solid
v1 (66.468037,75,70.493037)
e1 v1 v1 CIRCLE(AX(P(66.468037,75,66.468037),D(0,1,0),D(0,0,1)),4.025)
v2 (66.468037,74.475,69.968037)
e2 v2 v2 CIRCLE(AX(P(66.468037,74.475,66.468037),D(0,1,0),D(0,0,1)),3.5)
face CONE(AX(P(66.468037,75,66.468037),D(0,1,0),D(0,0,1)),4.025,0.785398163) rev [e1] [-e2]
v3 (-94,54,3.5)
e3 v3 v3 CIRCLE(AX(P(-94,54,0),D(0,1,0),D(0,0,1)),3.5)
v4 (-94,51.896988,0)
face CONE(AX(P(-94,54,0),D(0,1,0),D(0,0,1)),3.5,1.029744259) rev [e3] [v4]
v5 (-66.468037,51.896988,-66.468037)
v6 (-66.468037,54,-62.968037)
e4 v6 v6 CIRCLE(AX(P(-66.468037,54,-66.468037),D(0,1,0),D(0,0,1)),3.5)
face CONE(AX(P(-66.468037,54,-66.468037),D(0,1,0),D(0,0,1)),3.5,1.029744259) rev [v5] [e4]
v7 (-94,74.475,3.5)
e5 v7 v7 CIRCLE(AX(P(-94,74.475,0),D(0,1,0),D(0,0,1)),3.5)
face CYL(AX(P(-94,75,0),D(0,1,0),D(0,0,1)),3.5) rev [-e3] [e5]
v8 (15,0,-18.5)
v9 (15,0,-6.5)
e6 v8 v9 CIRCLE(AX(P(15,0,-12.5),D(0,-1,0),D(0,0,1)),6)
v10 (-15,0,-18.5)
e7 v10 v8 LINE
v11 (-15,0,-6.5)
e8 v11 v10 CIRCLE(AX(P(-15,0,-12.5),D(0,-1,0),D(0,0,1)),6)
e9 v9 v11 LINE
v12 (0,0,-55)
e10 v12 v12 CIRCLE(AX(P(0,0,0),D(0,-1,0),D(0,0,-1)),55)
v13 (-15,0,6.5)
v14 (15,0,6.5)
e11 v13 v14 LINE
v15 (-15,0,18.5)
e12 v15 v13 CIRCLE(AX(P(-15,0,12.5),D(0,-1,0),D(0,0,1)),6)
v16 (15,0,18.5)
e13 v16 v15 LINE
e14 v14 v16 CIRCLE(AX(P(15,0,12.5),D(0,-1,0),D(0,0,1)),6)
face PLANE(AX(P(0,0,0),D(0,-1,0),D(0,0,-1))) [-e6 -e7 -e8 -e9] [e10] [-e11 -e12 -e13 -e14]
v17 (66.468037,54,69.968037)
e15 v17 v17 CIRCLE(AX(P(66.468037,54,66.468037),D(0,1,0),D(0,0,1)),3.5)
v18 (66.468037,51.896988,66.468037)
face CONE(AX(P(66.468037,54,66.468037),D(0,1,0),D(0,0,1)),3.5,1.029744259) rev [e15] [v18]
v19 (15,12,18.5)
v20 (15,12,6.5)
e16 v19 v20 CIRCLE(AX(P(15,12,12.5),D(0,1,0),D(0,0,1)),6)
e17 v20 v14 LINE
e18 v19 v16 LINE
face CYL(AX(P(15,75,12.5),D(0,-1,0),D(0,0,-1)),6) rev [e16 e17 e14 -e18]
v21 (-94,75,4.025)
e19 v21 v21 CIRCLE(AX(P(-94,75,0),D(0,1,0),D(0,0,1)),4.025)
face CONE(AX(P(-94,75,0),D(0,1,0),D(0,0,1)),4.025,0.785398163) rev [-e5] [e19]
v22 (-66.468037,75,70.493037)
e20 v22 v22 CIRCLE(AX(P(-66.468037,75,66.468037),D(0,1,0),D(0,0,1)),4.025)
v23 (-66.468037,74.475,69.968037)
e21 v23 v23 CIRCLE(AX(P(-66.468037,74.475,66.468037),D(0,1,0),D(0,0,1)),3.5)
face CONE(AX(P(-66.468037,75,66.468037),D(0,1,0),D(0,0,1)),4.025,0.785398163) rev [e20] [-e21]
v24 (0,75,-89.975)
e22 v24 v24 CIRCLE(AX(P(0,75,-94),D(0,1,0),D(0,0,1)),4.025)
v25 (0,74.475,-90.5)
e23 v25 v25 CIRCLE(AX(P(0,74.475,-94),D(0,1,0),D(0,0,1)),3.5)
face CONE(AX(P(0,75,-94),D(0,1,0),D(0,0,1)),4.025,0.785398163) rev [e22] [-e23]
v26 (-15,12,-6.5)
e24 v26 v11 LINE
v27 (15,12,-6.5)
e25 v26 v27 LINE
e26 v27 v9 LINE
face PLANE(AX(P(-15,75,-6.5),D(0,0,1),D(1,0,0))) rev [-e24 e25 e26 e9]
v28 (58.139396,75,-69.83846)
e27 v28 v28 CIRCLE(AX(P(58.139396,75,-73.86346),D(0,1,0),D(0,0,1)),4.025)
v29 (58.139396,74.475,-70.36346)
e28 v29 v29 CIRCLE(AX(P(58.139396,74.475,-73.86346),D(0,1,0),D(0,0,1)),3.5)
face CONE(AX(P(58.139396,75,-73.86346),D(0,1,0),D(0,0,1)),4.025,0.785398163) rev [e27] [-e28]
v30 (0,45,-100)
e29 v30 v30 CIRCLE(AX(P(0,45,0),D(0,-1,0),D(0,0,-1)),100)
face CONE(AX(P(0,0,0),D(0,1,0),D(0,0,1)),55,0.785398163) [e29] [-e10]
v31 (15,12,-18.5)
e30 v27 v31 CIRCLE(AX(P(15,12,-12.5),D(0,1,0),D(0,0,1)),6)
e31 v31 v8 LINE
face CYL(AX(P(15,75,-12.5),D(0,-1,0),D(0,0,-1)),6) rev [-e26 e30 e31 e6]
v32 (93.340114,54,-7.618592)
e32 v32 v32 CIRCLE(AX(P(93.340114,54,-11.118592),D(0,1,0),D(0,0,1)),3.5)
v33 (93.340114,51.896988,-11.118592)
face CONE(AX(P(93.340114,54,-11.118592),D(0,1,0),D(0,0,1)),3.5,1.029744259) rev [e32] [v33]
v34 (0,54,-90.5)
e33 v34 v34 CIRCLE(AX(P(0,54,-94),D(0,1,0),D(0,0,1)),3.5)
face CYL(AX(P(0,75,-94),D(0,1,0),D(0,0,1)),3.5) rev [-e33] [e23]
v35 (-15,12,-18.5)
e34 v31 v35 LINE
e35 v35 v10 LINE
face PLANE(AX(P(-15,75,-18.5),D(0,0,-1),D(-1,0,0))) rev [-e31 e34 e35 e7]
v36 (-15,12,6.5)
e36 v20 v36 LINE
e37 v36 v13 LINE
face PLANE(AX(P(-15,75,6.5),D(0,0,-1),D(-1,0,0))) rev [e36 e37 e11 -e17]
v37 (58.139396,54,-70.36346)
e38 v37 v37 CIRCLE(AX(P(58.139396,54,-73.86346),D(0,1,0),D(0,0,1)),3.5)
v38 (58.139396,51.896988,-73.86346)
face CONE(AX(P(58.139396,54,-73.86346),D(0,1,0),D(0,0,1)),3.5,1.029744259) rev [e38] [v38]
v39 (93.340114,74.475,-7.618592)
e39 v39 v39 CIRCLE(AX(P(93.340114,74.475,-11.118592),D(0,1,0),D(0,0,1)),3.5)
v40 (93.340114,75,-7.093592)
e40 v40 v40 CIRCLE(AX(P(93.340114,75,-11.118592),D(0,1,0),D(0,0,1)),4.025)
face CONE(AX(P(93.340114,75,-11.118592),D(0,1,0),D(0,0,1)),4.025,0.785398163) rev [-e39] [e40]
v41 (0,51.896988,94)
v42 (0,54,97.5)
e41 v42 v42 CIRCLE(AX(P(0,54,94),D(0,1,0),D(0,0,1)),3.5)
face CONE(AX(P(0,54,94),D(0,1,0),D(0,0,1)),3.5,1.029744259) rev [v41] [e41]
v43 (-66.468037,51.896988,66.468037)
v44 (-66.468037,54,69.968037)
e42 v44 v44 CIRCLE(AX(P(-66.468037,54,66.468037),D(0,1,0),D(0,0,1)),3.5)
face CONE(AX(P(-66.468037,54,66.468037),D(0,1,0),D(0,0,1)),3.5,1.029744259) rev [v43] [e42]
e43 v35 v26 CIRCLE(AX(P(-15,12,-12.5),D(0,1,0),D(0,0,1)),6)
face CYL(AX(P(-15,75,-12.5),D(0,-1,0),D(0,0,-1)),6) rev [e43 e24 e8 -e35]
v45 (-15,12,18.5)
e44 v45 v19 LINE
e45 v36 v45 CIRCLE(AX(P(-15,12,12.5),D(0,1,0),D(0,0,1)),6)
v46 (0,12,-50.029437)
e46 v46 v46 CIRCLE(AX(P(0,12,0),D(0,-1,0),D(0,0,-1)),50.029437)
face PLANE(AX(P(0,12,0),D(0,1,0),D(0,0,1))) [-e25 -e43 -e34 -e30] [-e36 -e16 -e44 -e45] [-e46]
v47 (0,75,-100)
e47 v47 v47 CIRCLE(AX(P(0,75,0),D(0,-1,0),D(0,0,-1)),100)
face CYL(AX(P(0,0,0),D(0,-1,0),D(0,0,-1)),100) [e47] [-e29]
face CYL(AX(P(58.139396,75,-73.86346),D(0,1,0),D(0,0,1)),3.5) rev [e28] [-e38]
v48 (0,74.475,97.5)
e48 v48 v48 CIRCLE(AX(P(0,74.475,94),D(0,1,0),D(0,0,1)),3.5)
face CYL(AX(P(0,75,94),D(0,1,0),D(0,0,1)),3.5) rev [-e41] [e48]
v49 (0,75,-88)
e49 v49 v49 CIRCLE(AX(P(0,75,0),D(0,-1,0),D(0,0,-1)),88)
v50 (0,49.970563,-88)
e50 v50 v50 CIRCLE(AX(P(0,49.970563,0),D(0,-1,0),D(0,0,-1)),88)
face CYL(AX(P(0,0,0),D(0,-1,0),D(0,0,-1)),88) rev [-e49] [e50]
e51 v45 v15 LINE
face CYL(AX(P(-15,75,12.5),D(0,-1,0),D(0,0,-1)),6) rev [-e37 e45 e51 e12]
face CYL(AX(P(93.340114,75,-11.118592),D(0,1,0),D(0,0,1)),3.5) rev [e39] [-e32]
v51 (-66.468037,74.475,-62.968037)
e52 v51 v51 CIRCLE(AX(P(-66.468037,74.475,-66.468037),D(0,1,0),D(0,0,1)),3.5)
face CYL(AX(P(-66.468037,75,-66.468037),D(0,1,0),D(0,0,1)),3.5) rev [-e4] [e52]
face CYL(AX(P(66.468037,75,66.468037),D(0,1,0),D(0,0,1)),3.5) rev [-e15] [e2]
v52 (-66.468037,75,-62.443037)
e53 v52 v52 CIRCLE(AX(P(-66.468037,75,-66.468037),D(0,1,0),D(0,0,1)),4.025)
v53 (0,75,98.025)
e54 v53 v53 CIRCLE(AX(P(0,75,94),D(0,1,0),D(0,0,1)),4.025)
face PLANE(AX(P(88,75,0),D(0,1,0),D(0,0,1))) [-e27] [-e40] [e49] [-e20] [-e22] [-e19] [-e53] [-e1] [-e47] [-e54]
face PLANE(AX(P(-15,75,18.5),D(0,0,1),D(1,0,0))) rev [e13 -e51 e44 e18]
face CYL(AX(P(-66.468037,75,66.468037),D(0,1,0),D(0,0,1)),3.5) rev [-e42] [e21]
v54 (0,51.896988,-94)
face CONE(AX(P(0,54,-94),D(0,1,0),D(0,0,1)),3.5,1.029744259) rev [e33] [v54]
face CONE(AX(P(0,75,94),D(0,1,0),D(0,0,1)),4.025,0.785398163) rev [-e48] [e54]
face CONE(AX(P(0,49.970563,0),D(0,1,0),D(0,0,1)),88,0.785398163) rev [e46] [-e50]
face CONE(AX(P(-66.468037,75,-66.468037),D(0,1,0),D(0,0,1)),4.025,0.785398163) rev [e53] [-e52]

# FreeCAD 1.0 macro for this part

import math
import FreeCAD as App
import Part
import Sketcher

V = App.Vector
Q = App.Units.Quantity


def add_polygon(sketch, points):
    """Adds a closed chain of lines whose ends are joined by coincident constraints."""
    first, n = sketch.GeometryCount, len(points)
    for a, b in zip(points, points[1:] + points[:1]):
        sketch.addGeometry(Part.LineSegment(App.Vector(*a, 0), App.Vector(*b, 0)), False)
    for i in range(n):
        sketch.addConstraint(Sketcher.Constraint("Coincident", first + i, 2, first + (i + 1) % n, 1))

doc = App.newDocument("Part")
body = doc.addObject("PartDesign::Body", "Body")

# Sketch on XY plane
sketch1 = body.newObject("Sketcher::SketchObject", "Sketch")
sketch1.AttachmentSupport = (doc.getObject("XY_Plane"), [""])
sketch1.MapMode = "FlatFace"
add_polygon(sketch1, [(55, 0), (100, 45), (100, 75), (88, 75), (88, 50), (50, 12), (0, 12), (0, 0)])  # lines 0-7
sketch1.addConstraint([
    Sketcher.Constraint("Vertical", 1),
    Sketcher.Constraint("Horizontal", 2),
    Sketcher.Constraint("Vertical", 3),
    Sketcher.Constraint("Horizontal", 5),
    Sketcher.Constraint("Vertical", 6),
    Sketcher.Constraint("Horizontal", 7),
    Sketcher.Constraint("Coincident", 6, 2, -1, 1),
    Sketcher.Constraint("Parallel", 0, 4),
    Sketcher.Constraint("Equal", 2, 6),
    Sketcher.Constraint("DistanceX", 2, 2, 2, 1, Q("12 mm")),
    Sketcher.Constraint("DistanceX", 7, 1, 7, 2, Q("55 mm")),
    Sketcher.Constraint("DistanceY", 1, 1, 1, 2, Q("30 mm")),
    Sketcher.Constraint("Angle", 0, Q("45 deg")),
    Sketcher.Constraint("DistanceX", -1, 1, 0, 2, Q("100 mm")),
    Sketcher.Constraint("DistanceX", 5, 2, 5, 1, Q("50.029437 mm")),
])
revolution = body.newObject("PartDesign::Revolution", "Revolution")
revolution.Profile = sketch1
revolution.ReferenceAxis = (sketch1, ["V_Axis"])
revolution.Angle = 360

# Sketch on XZ plane
sketch2 = body.newObject("Sketcher::SketchObject", "Sketch001")
sketch2.AttachmentSupport = (doc.getObject("XZ_Plane"), [""])
sketch2.MapMode = "FlatFace"
sketch2.addGeometry([
    Part.LineSegment(V(15, 18, 0), V(-15, 18, 0)),  # 0
    Part.ArcOfCircle(Part.Circle(V(-15, 12, 0), V(0, 0, 1), 6), math.radians(90), math.radians(270)),  # 1
    Part.LineSegment(V(-15, 6, 0), V(15, 6, 0)),  # 2
    Part.ArcOfCircle(Part.Circle(V(15, 12, 0), V(0, 0, 1), 6), math.radians(-90), math.radians(90)),  # 3
    Part.LineSegment(V(15, -6, 0), V(-15, -6, 0)),  # 4
    Part.ArcOfCircle(Part.Circle(V(-15, -12, 0), V(0, 0, 1), 6), math.radians(90), math.radians(270)),  # 5
    Part.LineSegment(V(-15, -18, 0), V(15, -18, 0)),  # 6
    Part.ArcOfCircle(Part.Circle(V(15, -12, 0), V(0, 0, 1), 6), math.radians(-90), math.radians(90)),  # 7
], False)
sketch2.addConstraint([
    Sketcher.Constraint("Tangent", 0, 2, 1, 1),
    Sketcher.Constraint("Tangent", 1, 2, 2, 1),
    Sketcher.Constraint("Tangent", 2, 2, 3, 1),
    Sketcher.Constraint("Tangent", 3, 2, 0, 1),
    Sketcher.Constraint("Tangent", 4, 2, 5, 1),
    Sketcher.Constraint("Tangent", 5, 2, 6, 1),
    Sketcher.Constraint("Tangent", 6, 2, 7, 1),
    Sketcher.Constraint("Tangent", 7, 2, 4, 1),
    Sketcher.Constraint("Horizontal", 0),
    Sketcher.Constraint("Horizontal", 2),
    Sketcher.Constraint("Horizontal", 4),
    Sketcher.Constraint("Horizontal", 6),
    Sketcher.Constraint("Equal", 3, 5),
    Sketcher.Constraint("Symmetric", 3, 3, 5, 3, -1, 1),
    Sketcher.Constraint("Vertical", 1, 3, 5, 3),
    Sketcher.Constraint("Vertical", 3, 3, 7, 3),
    Sketcher.Constraint("Radius", 1, Q("6 mm")),
    Sketcher.Constraint("DistanceX", 0, 2, 0, 1, Q("30 mm")),
    Sketcher.Constraint("DistanceY", 5, 3, 1, 3, Q("25 mm")),
])
pocket1 = body.newObject("PartDesign::Pocket", "Pocket")
pocket1.Profile = sketch2
pocket1.Type = "ThroughAll"

# Sketch on XZ plane
sketch3 = body.newObject("Sketcher::SketchObject", "Sketch002")
sketch3.AttachmentSupport = (doc.getObject("XZ_Plane"), [""])
sketch3.MapMode = "FlatFace"
sketch3.AttachmentOffset = App.Placement(V(0, 0, -75), App.Rotation())
sketch3.addGeometry([
    Part.Circle(V(0, -94, 0), V(0, 0, 1), 3.5),  # 0
    Part.Circle(V(58.1, -73.9, 0), V(0, 0, 1), 3.5),  # 1
    Part.Circle(V(93.3, -11.1, 0), V(0, 0, 1), 3.5),  # 2
    Part.Circle(V(66.5, 66.5, 0), V(0, 0, 1), 3.5),  # 3
    Part.Circle(V(0, 94, 0), V(0, 0, 1), 3.5),  # 4
    Part.Circle(V(-66.5, 66.5, 0), V(0, 0, 1), 3.5),  # 5
    Part.Circle(V(-94, 0, 0), V(0, 0, 1), 3.5),  # 6
    Part.Circle(V(-66.5, -66.5, 0), V(0, 0, 1), 3.5),  # 7
], False)
sketch3.addConstraint([
    Sketcher.Constraint("Equal", 0, 1),
    Sketcher.Constraint("Equal", 1, 2),
    Sketcher.Constraint("Equal", 2, 3),
    Sketcher.Constraint("Equal", 3, 4),
    Sketcher.Constraint("Equal", 4, 5),
    Sketcher.Constraint("Equal", 5, 6),
    Sketcher.Constraint("Equal", 6, 7),
    Sketcher.Constraint("Symmetric", 0, 3, 4, 3, -1, 1),
    Sketcher.Constraint("Symmetric", 3, 3, 7, 3, -1, 1),
    Sketcher.Constraint("Symmetric", 3, 3, 5, 3, -2),
    Sketcher.Constraint("PointOnObject", 0, 3, -2),
    Sketcher.Constraint("PointOnObject", 6, 3, -1),
    Sketcher.Constraint("Diameter", 0, Q("7 mm")),
    Sketcher.Constraint("DistanceY", 0, 3, -1, 1, Q("94 mm")),
    Sketcher.Constraint("DistanceX", 6, 3, -1, 1, Q("94 mm")),
    Sketcher.Constraint("DistanceY", 1, 3, -1, 1, Q("73.86346 mm")),
    Sketcher.Constraint("DistanceX", 1, 3, 2, 3, Q("35.200718 mm")),
    Sketcher.Constraint("DistanceY", 2, 3, 3, 3, Q("77.58663 mm")),
    Sketcher.Constraint("DistanceX", 1, 3, 3, 3, Q("8.328642 mm")),
    Sketcher.Constraint("DistanceX", 5, 3, 2, 3, Q("159.808152 mm")),
    Sketcher.Constraint("DistanceY", 2, 3, -1, 1, Q("11.118592 mm")),
])
doc.recompute()
hole = body.newObject("PartDesign::Hole", "Hole")
hole.Profile = sketch3
hole.ThreadType = "None"
hole.Diameter = 7
hole.DepthType = "Dimension"
hole.Depth = 21
hole.DrillPoint = "Angled"
hole.DrillPointAngle = 118
hole.HoleCutType = "Countersink"
hole.HoleCutDiameter = 8.05
hole.HoleCutCountersinkAngle = 90
hole.Reversed = True

doc.recompute()
